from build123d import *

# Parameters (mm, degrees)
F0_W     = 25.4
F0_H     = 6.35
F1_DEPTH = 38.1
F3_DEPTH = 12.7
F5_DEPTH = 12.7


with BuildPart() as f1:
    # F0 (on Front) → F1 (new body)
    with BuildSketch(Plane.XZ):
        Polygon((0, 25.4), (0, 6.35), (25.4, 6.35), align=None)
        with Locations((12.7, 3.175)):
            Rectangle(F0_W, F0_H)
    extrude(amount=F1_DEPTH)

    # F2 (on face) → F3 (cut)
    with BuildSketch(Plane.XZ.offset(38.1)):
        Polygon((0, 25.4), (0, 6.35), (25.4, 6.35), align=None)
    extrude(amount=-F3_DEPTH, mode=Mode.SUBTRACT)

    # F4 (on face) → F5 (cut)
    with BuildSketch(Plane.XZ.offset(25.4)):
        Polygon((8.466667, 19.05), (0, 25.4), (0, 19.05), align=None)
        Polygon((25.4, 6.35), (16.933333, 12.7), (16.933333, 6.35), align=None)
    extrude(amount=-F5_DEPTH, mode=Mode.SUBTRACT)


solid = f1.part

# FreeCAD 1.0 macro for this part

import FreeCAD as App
import Part
import Sketcher
from FreeCAD import Vector
Q = App.Units.Quantity

doc = App.newDocument("Part")
body = doc.addObject("PartDesign::Body", "Body")

# Sketch on XZ plane
sketch1 = body.newObject("Sketcher::SketchObject", "Sketch")
sketch1.AttachmentSupport = (doc.getObject("XZ_Plane"), [""])
sketch1.MapMode = "FlatFace"
sketch1.addGeometry([
    Part.LineSegment(Vector(0, 25, 0), Vector(0, 0, 0)),
    Part.LineSegment(Vector(0, 0, 0), Vector(25, 0, 0)),
    Part.LineSegment(Vector(25, 0, 0), Vector(25, 6, 0)),
    Part.LineSegment(Vector(25, 6, 0), Vector(0, 25, 0)),
], False)
sketch1.addConstraint([
    Sketcher.Constraint("Coincident", 0, 2, 1, 1),
    Sketcher.Constraint("Coincident", 1, 2, 2, 1),
    Sketcher.Constraint("Coincident", 2, 2, 3, 1),
    Sketcher.Constraint("Coincident", 3, 2, 0, 1),
    Sketcher.Constraint("Vertical", 0),
    Sketcher.Constraint("Horizontal", 1),
    Sketcher.Constraint("Vertical", 2),
    Sketcher.Constraint("Coincident", 0, 2, -1, 1),
    Sketcher.Constraint("Equal", 1, 0),
    Sketcher.Constraint("DistanceX", 1, 1, 1, 2, Q("1 in")),
    Sketcher.Constraint("DistanceY", 2, 1, 2, 2, Q("0.25 in")),
])
pad1 = body.newObject("PartDesign::Pad", "Pad")
pad1.Profile = sketch1
pad1.Length = Q("1.5 in")

# Sketch on XZ plane
sketch2 = body.newObject("Sketcher::SketchObject", "Sketch001")
sketch2.AttachmentSupport = (doc.getObject("XZ_Plane"), [""])
sketch2.MapMode = "FlatFace"
sketch2.AttachmentOffset = App.Placement(Vector(0, 0, 1.5 * 25.4), App.Rotation())
sketch2.addGeometry([
    Part.LineSegment(Vector(0, 25, 0), Vector(0, 6, 0)),
    Part.LineSegment(Vector(0, 6, 0), Vector(25, 6, 0)),
    Part.LineSegment(Vector(25, 6, 0), Vector(0, 25, 0)),
], False)
sketch2.addConstraint([
    Sketcher.Constraint("Coincident", 0, 2, 1, 1),
    Sketcher.Constraint("Coincident", 1, 2, 2, 1),
    Sketcher.Constraint("Coincident", 2, 2, 0, 1),
    Sketcher.Constraint("Vertical", 0),
    Sketcher.Constraint("Horizontal", 1),
    Sketcher.Constraint("PointOnObject", 0, 2, -2),
    Sketcher.Constraint("DistanceX", 1, 1, 1, 2, Q("1 in")),
    Sketcher.Constraint("DistanceY", -1, 1, 2, 2, Q("1 in")),
    Sketcher.Constraint("DistanceY", 0, 2, 0, 1, Q("0.75 in")),
])
pocket1 = body.newObject("PartDesign::Pocket", "Pocket")
pocket1.Profile = sketch2
pocket1.Length = Q("0.5 in")

# Sketch on XZ plane
sketch3 = body.newObject("Sketcher::SketchObject", "Sketch002")
sketch3.AttachmentSupport = (doc.getObject("XZ_Plane"), [""])
sketch3.MapMode = "FlatFace"
sketch3.AttachmentOffset = App.Placement(Vector(0, 0, 1 * 25.4), App.Rotation())
sketch3.addGeometry([
    Part.LineSegment(Vector(8, 19, 0), Vector(0, 25, 0)),  # 0
    Part.LineSegment(Vector(0, 25, 0), Vector(0, 19, 0)),  # 1
    Part.LineSegment(Vector(0, 19, 0), Vector(8, 19, 0)),  # 2
    Part.LineSegment(Vector(25, 6, 0), Vector(17, 13, 0)),  # 3
    Part.LineSegment(Vector(17, 13, 0), Vector(17, 6, 0)),  # 4
    Part.LineSegment(Vector(17, 6, 0), Vector(25, 6, 0)),  # 5
], False)
sketch3.addConstraint([
    Sketcher.Constraint("Coincident", 0, 2, 1, 1),
    Sketcher.Constraint("Coincident", 1, 2, 2, 1),
    Sketcher.Constraint("Coincident", 2, 2, 0, 1),
    Sketcher.Constraint("Coincident", 3, 2, 4, 1),
    Sketcher.Constraint("Coincident", 4, 2, 5, 1),
    Sketcher.Constraint("Coincident", 5, 2, 3, 1),
    Sketcher.Constraint("Vertical", 1),
    Sketcher.Constraint("Horizontal", 2),
    Sketcher.Constraint("Vertical", 4),
    Sketcher.Constraint("Horizontal", 5),
    Sketcher.Constraint("PointOnObject", 0, 2, -2),
    Sketcher.Constraint("Parallel", 0, 3),
    Sketcher.Constraint("Equal", 2, 5),
    Sketcher.Constraint("DistanceY", -1, 1, 0, 2, Q("1 in")),
    Sketcher.Constraint("DistanceX", -1, 1, 5, 2, Q("1 in")),
    Sketcher.Constraint("DistanceY", 1, 2, 1, 1, Q("0.25 in")),
    Sketcher.Constraint("DistanceY", -1, 1, 3, 2, Q("0.5 in")),
    Sketcher.Constraint("DistanceX", 2, 1, 2, 2, 8.466667),
])
pocket2 = body.newObject("PartDesign::Pocket", "Pocket001")
pocket2.Profile = sketch3
pocket2.Length = Q("0.5 in")

doc.recompute()
